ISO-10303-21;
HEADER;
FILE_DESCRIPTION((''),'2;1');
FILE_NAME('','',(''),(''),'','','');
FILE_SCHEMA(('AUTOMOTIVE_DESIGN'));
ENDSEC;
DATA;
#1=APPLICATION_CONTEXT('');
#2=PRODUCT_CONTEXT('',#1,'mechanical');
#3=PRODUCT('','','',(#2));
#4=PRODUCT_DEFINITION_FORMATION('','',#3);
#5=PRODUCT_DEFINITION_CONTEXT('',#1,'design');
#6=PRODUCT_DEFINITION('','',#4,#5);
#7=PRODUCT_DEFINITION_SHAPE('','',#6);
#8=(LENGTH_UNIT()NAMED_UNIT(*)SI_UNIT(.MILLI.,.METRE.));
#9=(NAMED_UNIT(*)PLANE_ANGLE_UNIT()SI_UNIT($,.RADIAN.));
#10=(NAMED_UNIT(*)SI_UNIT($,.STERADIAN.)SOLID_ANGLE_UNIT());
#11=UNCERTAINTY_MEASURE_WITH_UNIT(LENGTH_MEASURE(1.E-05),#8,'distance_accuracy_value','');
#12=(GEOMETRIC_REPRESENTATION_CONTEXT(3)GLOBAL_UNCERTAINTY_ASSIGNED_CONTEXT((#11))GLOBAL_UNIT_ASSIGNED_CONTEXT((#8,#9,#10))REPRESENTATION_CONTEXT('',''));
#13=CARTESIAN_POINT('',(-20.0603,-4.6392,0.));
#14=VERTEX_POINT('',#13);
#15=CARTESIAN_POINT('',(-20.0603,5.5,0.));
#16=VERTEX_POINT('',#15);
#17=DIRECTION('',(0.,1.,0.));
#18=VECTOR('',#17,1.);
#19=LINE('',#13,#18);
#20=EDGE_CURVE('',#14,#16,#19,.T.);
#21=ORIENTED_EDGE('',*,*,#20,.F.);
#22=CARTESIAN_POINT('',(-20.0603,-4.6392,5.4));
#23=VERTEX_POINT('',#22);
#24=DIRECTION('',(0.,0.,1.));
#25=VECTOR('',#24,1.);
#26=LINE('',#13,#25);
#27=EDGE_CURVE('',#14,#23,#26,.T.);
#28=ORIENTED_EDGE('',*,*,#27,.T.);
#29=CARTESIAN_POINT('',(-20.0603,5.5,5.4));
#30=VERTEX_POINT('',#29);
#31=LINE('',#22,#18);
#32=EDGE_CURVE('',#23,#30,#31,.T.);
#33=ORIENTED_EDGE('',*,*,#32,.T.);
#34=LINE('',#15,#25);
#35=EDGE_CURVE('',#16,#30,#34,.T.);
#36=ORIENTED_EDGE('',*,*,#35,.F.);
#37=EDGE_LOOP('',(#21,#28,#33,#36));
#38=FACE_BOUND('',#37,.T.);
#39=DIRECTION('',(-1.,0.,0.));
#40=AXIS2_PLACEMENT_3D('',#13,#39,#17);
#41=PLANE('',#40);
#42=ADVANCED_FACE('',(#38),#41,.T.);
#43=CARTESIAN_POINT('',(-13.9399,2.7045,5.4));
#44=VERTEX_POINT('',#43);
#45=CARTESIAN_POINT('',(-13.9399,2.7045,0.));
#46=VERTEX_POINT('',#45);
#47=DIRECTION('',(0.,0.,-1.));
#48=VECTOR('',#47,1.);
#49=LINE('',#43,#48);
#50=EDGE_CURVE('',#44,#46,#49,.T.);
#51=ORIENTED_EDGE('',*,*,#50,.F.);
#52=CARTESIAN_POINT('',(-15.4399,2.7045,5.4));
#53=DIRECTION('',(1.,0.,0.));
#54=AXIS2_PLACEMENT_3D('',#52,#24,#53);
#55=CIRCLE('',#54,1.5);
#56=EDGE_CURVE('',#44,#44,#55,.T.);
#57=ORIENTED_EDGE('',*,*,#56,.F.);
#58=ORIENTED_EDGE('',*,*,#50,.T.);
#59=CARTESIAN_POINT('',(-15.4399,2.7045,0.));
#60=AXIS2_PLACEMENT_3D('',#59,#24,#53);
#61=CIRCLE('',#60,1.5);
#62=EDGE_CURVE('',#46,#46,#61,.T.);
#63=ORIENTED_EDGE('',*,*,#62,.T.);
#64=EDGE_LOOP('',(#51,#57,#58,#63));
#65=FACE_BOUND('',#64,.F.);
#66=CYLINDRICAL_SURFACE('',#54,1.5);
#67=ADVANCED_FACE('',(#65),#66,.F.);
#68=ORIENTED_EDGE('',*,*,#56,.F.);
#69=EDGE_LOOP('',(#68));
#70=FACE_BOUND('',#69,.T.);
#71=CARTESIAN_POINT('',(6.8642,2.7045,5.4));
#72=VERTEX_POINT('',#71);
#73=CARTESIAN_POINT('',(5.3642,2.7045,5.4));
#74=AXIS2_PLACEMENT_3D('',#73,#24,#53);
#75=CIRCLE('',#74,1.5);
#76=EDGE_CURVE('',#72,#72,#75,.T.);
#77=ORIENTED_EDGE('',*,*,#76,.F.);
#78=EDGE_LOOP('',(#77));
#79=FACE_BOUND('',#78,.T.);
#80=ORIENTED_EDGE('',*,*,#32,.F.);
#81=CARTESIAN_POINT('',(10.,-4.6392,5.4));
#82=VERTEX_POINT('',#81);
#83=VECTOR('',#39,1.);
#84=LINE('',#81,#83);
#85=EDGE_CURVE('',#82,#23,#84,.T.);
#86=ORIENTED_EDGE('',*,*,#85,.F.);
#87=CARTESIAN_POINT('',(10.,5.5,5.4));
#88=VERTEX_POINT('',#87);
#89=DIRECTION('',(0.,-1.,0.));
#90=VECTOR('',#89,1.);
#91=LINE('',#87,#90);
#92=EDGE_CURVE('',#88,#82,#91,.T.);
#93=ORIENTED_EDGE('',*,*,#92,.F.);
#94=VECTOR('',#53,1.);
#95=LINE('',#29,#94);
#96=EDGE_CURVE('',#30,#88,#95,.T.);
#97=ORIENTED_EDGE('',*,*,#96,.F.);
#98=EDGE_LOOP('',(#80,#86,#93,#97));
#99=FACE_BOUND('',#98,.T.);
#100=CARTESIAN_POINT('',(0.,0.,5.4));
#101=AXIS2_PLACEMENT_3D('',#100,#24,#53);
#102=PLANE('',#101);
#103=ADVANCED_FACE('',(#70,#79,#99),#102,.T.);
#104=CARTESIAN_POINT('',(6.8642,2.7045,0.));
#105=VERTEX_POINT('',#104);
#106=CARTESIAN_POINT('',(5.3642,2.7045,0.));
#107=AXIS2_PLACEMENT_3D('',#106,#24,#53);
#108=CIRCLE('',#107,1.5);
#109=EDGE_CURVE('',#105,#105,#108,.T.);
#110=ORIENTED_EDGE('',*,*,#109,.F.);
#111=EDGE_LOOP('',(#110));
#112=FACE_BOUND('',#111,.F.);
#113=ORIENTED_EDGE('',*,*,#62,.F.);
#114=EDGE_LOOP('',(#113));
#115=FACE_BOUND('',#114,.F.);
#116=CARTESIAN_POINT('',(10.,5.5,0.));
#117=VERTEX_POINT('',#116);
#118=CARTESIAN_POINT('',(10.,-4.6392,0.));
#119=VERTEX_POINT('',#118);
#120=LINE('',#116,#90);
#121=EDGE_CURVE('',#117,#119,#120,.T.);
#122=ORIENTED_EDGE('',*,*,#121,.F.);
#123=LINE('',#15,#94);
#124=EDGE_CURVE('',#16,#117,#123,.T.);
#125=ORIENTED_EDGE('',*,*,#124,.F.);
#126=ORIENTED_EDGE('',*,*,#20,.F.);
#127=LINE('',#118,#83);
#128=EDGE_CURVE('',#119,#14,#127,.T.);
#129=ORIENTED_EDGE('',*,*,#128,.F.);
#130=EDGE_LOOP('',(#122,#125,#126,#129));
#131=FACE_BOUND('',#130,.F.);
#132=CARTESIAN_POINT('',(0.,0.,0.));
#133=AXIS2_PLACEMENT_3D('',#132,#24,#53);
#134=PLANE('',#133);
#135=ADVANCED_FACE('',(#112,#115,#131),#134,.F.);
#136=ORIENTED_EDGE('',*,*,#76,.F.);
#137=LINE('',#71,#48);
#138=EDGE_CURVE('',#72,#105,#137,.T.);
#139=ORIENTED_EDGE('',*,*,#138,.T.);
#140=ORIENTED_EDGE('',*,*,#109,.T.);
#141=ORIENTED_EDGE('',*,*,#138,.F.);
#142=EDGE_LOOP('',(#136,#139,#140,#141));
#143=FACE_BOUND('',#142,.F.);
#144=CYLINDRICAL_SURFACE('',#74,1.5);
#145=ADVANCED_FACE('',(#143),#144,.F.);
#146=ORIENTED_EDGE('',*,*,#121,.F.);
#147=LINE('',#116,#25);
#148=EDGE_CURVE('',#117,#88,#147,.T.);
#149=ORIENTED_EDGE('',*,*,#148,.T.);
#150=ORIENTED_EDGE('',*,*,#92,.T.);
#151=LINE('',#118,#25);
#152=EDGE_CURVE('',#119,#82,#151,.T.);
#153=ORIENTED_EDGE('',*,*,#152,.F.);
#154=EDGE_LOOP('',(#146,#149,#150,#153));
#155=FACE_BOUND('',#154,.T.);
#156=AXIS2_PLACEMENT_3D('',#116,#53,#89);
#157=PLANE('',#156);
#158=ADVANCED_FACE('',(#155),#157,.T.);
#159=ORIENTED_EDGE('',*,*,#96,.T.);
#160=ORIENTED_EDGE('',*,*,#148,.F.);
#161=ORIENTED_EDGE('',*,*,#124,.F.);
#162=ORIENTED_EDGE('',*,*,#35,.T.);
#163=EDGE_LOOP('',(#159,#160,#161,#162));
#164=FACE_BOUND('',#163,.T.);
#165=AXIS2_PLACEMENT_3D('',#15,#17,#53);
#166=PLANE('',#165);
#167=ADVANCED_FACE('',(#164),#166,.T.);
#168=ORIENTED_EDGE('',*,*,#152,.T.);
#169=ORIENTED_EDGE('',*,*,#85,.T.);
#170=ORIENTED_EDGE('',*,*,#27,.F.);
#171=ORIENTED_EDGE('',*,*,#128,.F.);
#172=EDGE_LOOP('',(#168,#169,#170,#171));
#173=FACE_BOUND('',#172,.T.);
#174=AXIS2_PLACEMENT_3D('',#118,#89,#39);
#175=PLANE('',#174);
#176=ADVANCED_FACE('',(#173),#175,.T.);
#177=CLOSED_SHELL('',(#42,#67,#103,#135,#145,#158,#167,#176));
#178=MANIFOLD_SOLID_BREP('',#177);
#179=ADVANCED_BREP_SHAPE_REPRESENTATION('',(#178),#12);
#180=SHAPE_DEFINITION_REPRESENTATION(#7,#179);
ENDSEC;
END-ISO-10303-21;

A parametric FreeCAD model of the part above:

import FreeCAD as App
import Part
import Sketcher

V = App.Vector

doc = App.newDocument("Part")
params = doc.addObject("Spreadsheet::Sheet", "Params")
for row, (alias, value) in enumerate([
    ("pad1_length", "5.4 mm"),
    ("sketch2_diameter", "3 mm"),
    ("pocket1_length", "21.65 mm"),
], start=1):
    params.set(f"A{row}", alias)
    params.set(f"B{row}", "=" + value)
    params.setAlias(f"B{row}", alias)

body = doc.addObject("PartDesign::Body", "Body")

# Sketch on XY plane
sketch1 = body.newObject("Sketcher::SketchObject", "Sketch")
sketch1.AttachmentSupport = (doc.getObject("XY_Plane"), [""])
sketch1.MapMode = "FlatFace"
sketch1.addGeometry(Part.LineSegment(V(-20.0603, -4.6392, 0), V(10, -4.6392, 0)), False)
sketch1.addGeometry(Part.LineSegment(V(10, -4.6392, 0), V(10, 5.5, 0)), False)
sketch1.addGeometry(Part.LineSegment(V(10, 5.5, 0), V(-20.0603, 5.5, 0)), False)
sketch1.addGeometry(Part.LineSegment(V(-20.0603, 5.5, 0), V(-20.0603, -4.6392, 0)), False)
sketch1.addConstraint(Sketcher.Constraint("Coincident", 0, 2, 1, 1))
sketch1.addConstraint(Sketcher.Constraint("Coincident", 1, 2, 2, 1))
sketch1.addConstraint(Sketcher.Constraint("Coincident", 2, 2, 3, 1))
sketch1.addConstraint(Sketcher.Constraint("Coincident", 3, 2, 0, 1))
sketch1.addConstraint(Sketcher.Constraint("Horizontal", 0))
sketch1.addConstraint(Sketcher.Constraint("Vertical", 1))
sketch1.addConstraint(Sketcher.Constraint("Horizontal", 2))
sketch1.addConstraint(Sketcher.Constraint("Vertical", 3))
sketch1.addConstraint(Sketcher.Constraint("DistanceY", 1, 1, 1, 2, 10.1392))
sketch1.addConstraint(Sketcher.Constraint("DistanceX", -1, 1, 0, 2, 10.0))
sketch1.addConstraint(Sketcher.Constraint("DistanceY", -1, 1, 1, 2, 5.5))
sketch1.addConstraint(Sketcher.Constraint("DistanceX", 0, 1, 0, 2, 30.0603))
pad1 = body.newObject("PartDesign::Pad", "Pad")
pad1.Profile = sketch1
pad1.setExpression("Length", "Params.pad1_length")

# Sketch on XY plane
sketch2 = body.newObject("Sketcher::SketchObject", "Sketch001")
sketch2.AttachmentSupport = (doc.getObject("XY_Plane"), [""])
sketch2.MapMode = "FlatFace"
sketch2.AttachmentOffset = App.Placement(V(0, 0, 5.4), App.Rotation())
sketch2.addGeometry(Part.Circle(V(5.3642, 2.7045, 0), V(0, 0, 1), 1.5), False)
sketch2.addGeometry(Part.Circle(V(-15.4399, 2.7045, 0), V(0, 0, 1), 1.5), False)
sketch2.addConstraint(Sketcher.Constraint("Equal", 0, 1))
sketch2.addConstraint(Sketcher.Constraint("Horizontal", 0, 3, 1, 3))
sketch2.addConstraint(Sketcher.Constraint("Diameter", 0, 3.0))
sketch2.addConstraint(Sketcher.Constraint("DistanceX", 1, 3, -1, 1, 15.44))
sketch2.addConstraint(Sketcher.Constraint("DistanceX", 1, 3, 0, 3, 20.804))
sketch2.addConstraint(Sketcher.Constraint("DistanceY", -1, 1, 0, 3, 2.7045))
sketch2.setExpression("Constraints[2]", "Params.sketch2_diameter")
pocket1 = body.newObject("PartDesign::Pocket", "Pocket")
pocket1.Profile = sketch2
pocket1.setExpression("Length", "Params.pocket1_length")

doc.recompute()
